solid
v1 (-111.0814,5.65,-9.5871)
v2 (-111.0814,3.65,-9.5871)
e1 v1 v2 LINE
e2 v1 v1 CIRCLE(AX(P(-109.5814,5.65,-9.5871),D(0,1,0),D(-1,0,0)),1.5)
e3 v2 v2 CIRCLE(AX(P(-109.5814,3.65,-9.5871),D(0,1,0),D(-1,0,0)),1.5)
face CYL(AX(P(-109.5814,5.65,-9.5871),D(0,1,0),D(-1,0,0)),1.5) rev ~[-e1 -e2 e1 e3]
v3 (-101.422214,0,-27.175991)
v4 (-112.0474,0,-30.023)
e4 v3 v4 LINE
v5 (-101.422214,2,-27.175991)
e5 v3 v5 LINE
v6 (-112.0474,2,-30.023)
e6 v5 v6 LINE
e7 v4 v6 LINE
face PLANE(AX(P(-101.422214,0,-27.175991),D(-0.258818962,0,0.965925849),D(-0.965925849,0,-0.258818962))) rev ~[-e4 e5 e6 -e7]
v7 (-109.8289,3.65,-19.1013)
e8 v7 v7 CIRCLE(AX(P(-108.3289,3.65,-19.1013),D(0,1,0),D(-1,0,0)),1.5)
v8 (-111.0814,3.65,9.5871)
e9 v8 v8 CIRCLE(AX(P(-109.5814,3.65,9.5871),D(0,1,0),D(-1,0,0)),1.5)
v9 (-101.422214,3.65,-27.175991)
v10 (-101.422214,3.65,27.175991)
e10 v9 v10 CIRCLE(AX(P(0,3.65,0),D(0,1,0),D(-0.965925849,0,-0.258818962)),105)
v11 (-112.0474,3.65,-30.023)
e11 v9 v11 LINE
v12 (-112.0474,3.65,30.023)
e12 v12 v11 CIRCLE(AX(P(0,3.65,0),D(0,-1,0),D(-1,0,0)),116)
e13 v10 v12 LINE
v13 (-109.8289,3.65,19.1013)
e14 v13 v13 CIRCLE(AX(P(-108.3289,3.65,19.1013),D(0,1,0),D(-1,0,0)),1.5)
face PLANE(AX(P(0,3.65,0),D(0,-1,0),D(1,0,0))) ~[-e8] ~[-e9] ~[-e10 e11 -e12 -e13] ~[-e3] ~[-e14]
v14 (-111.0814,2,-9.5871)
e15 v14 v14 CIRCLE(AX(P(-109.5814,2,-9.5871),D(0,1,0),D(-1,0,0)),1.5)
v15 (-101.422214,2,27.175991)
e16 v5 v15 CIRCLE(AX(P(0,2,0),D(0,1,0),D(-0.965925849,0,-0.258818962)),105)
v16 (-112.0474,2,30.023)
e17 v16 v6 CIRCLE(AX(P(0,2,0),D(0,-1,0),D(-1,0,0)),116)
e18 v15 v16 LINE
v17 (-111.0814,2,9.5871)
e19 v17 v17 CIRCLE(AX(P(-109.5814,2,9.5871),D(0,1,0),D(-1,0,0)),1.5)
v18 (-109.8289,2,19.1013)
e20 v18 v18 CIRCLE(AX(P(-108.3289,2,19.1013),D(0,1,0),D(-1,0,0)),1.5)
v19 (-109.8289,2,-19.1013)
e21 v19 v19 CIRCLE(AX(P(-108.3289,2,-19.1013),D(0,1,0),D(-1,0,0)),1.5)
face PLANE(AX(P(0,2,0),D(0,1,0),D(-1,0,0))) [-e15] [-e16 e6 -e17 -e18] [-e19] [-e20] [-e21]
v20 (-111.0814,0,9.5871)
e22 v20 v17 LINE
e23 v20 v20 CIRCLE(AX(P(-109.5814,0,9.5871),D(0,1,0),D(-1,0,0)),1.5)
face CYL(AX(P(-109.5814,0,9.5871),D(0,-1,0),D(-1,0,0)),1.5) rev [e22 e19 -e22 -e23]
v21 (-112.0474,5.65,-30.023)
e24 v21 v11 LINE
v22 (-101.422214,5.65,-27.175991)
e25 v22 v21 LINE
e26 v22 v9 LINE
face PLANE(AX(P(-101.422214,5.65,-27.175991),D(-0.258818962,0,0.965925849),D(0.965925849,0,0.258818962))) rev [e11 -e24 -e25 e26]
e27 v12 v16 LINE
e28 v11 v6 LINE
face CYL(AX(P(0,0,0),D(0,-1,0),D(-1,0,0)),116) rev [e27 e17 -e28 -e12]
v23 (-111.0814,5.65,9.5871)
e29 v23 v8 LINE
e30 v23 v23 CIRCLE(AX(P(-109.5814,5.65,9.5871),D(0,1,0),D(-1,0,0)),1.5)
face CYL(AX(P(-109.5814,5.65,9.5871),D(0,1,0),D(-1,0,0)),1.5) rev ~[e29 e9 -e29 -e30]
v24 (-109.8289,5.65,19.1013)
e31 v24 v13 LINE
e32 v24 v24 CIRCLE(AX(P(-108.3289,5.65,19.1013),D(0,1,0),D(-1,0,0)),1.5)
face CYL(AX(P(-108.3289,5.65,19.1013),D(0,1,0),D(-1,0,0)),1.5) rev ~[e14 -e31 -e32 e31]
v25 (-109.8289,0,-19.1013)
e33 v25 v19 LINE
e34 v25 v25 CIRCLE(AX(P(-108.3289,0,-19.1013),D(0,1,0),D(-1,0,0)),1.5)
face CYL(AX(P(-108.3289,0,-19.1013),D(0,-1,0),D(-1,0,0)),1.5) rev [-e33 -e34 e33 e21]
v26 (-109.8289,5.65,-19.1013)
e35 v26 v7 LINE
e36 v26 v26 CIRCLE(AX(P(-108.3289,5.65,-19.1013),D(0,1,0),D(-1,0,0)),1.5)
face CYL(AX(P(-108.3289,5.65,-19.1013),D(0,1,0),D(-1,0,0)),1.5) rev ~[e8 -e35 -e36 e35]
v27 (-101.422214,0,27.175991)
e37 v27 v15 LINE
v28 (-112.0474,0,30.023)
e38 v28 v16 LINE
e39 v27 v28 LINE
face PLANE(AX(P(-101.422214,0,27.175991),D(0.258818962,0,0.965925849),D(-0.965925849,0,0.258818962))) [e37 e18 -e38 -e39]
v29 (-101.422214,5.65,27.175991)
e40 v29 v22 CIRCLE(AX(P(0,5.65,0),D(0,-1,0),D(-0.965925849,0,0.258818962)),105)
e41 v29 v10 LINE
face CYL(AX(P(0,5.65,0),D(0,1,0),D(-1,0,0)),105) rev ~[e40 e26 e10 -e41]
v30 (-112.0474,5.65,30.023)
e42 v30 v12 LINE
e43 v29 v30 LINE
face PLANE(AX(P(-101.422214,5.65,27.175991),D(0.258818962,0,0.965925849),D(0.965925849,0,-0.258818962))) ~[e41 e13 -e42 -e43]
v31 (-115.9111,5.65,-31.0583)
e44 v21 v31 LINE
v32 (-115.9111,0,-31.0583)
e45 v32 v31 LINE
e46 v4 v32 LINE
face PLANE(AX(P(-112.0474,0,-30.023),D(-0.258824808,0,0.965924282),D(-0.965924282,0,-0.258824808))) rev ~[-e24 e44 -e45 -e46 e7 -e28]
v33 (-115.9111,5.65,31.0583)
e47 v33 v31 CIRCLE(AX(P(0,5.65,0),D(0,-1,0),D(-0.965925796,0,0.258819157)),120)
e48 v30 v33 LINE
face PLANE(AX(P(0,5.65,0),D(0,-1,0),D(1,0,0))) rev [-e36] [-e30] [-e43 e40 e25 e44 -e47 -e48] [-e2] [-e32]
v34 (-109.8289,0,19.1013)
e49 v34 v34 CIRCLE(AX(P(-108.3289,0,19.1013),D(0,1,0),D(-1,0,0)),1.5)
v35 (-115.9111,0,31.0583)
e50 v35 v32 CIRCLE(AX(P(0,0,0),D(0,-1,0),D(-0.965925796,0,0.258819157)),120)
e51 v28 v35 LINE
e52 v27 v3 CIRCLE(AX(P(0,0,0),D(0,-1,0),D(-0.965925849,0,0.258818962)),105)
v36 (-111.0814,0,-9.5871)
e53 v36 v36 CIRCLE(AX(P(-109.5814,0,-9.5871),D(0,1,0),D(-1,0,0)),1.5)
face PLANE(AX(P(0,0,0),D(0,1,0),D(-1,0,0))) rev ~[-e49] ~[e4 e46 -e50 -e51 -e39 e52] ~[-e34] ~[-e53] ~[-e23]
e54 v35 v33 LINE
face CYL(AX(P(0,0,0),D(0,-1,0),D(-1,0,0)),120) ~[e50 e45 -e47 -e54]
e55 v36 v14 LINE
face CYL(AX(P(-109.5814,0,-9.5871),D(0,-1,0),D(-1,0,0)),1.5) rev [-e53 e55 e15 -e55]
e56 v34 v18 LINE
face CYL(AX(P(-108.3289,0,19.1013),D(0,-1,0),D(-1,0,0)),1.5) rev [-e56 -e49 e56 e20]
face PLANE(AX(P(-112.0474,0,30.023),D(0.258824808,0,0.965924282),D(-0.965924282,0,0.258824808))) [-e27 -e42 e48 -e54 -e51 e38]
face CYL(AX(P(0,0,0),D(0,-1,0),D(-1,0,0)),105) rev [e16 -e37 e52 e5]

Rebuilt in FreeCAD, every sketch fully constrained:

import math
import FreeCAD as App
import Part
import Sketcher
Q = App.Units.Quantity

doc = App.newDocument("Part")
body = doc.addObject("PartDesign::Body", "Body")

# Sketch on XZ plane
sketch1 = body.newObject("Sketcher::SketchObject", "Sketch")
sketch1.AttachmentSupport = (doc.getObject("XZ_Plane"), [""])
sketch1.MapMode = "FlatFace"
sketch1.addGeometry([
    Part.LineSegment(App.Vector(-101.422214, -27.175991, 0), App.Vector(-112.0474, -30.023, 0)),  # 0
    Part.LineSegment(App.Vector(-112.0474, -30.023, 0), App.Vector(-115.9111, -31.0583, 0)),  # 1
    Part.ArcOfCircle(Part.Circle(App.Vector(0, 0, 0), App.Vector(0, 0, 1), 120), math.radians(164.999993), math.radians(195.000007)),  # 2
    Part.LineSegment(App.Vector(-115.9111, 31.0583, 0), App.Vector(-112.0474, 30.023, 0)),  # 3
    Part.LineSegment(App.Vector(-112.0474, 30.023, 0), App.Vector(-101.422214, 27.175991, 0)),  # 4
    Part.ArcOfCircle(Part.Circle(App.Vector(0, 0, 0), App.Vector(0, 0, 1), 105), math.radians(165.000005), math.radians(194.999995)),  # 5
    Part.Circle(App.Vector(-108.3289, -19.1013, 0), App.Vector(0, 0, 1), 1.5),  # 6
    Part.Circle(App.Vector(-109.5814, -9.5871, 0), App.Vector(0, 0, 1), 1.5),  # 7
    Part.Circle(App.Vector(-108.3289, 19.1013, 0), App.Vector(0, 0, 1), 1.5),  # 8
    Part.Circle(App.Vector(-109.5814, 9.5871, 0), App.Vector(0, 0, 1), 1.5),  # 9
], False)
sketch1.addConstraint([
    Sketcher.Constraint("Coincident", 0, 2, 1, 1),
    Sketcher.Constraint("Coincident", 1, 2, 2, 2),
    Sketcher.Constraint("Coincident", 2, 1, 3, 1),
    Sketcher.Constraint("Coincident", 3, 2, 4, 1),
    Sketcher.Constraint("Coincident", 4, 2, 5, 1),
    Sketcher.Constraint("Coincident", 5, 2, 0, 1),
    Sketcher.Constraint("Coincident", 2, 3, -1, 1),
    Sketcher.Constraint("Coincident", 5, 3, -1, 1),
    Sketcher.Constraint("Equal", 6, 7),
    Sketcher.Constraint("Equal", 7, 8),
    Sketcher.Constraint("Equal", 8, 9),
    Sketcher.Constraint("Symmetric", 6, 3, 8, 3, -1),
    Sketcher.Constraint("Symmetric", 7, 3, 9, 3, -1),
    Sketcher.Constraint("Symmetric", 0, 2, 3, 2, -1),
    Sketcher.Constraint("Parallel", 0, 1),
    Sketcher.Constraint("Parallel", 3, 4),
    Sketcher.Constraint("Vertical", 1, 2, 2, 1),
    Sketcher.Constraint("Diameter", 6, Q("3 mm")),
    Sketcher.Constraint("Radius", 2, Q("120 mm")),
    Sketcher.Constraint("Radius", 5, Q("105 mm")),
    Sketcher.Constraint("Angle", 3, Q("-15.0003 deg")),
    Sketcher.Constraint("Distance", 0, Q("11 mm")),
    Sketcher.Constraint("DistanceY", 0, 2, 9, 3, Q("39.61 mm")),
    Sketcher.Constraint("DistanceX", 6, 3, -1, 1, Q("108.329 mm")),
    Sketcher.Constraint("DistanceY", 7, 3, -1, 1, Q("9.587 mm")),
    Sketcher.Constraint("DistanceX", 0, 2, 7, 3, Q("2.466 mm")),
    Sketcher.Constraint("DistanceY", 1, 2, 6, 3, Q("11.957 mm")),
])
pad1 = body.newObject("PartDesign::Pad", "Pad")
pad1.Profile = sketch1
pad1.Length = 2
pad1.Reversed = True

# Sketch on XZ plane
sketch2 = body.newObject("Sketcher::SketchObject", "Sketch001")
sketch2.AttachmentSupport = (doc.getObject("XZ_Plane"), [""])
sketch2.MapMode = "FlatFace"
sketch2.addGeometry([
    Part.ArcOfCircle(Part.Circle(App.Vector(0, 0, 0), App.Vector(0, 0, 1), 120), math.radians(164.999993), math.radians(195.000007)),
    Part.LineSegment(App.Vector(-115.9111, 31.0583, 0), App.Vector(-112.0474, 30.023, 0)),
    Part.ArcOfCircle(Part.Circle(App.Vector(0, 0, 0), App.Vector(0, 0, 1), 116), math.radians(165.000005), math.radians(194.999995)),
    Part.LineSegment(App.Vector(-112.0474, -30.023, 0), App.Vector(-115.9111, -31.0583, 0)),
], False)
sketch2.addConstraint([
    Sketcher.Constraint("Coincident", 0, 1, 1, 1),
    Sketcher.Constraint("Coincident", 1, 2, 2, 1),
    Sketcher.Constraint("Coincident", 2, 2, 3, 1),
    Sketcher.Constraint("Coincident", 3, 2, 0, 2),
    Sketcher.Constraint("Coincident", 0, 3, -1, 1),
    Sketcher.Constraint("Coincident", 2, 3, -1, 1),
    Sketcher.Constraint("Vertical", 1, 2, 2, 2),
    Sketcher.Constraint("Vertical", 0, 1, 3, 2),
    Sketcher.Constraint("Radius", 0, Q("120 mm")),
    Sketcher.Constraint("Radius", 2, Q("116 mm")),
    Sketcher.Constraint("Angle", 1, Q("-15.0003 deg")),
    Sketcher.Constraint("DistanceX", 0, 1, -1, 1, Q("115.911 mm")),
])
pad2 = body.newObject("PartDesign::Pad", "Pad001")
pad2.Profile = sketch2
pad2.Length = 2.825
pad2.Reversed = True
doc.recompute()

datumplane = body.newObject("PartDesign::Plane", "DatumPlane")
datumplane.AttachmentSupport = (doc.getObject("XZ_Plane"), [""])
datumplane.MapMode = "FlatFace"
datumplane.AttachmentOffset = App.Placement(App.Vector(0, 0, -2.825), App.Rotation())
mirrored = body.newObject("PartDesign::Mirrored", "Mirrored")
mirrored.TransformMode = "Transform body"
mirrored.MirrorPlane = (datumplane, [""])
body.Tip = mirrored

doc.recompute()
